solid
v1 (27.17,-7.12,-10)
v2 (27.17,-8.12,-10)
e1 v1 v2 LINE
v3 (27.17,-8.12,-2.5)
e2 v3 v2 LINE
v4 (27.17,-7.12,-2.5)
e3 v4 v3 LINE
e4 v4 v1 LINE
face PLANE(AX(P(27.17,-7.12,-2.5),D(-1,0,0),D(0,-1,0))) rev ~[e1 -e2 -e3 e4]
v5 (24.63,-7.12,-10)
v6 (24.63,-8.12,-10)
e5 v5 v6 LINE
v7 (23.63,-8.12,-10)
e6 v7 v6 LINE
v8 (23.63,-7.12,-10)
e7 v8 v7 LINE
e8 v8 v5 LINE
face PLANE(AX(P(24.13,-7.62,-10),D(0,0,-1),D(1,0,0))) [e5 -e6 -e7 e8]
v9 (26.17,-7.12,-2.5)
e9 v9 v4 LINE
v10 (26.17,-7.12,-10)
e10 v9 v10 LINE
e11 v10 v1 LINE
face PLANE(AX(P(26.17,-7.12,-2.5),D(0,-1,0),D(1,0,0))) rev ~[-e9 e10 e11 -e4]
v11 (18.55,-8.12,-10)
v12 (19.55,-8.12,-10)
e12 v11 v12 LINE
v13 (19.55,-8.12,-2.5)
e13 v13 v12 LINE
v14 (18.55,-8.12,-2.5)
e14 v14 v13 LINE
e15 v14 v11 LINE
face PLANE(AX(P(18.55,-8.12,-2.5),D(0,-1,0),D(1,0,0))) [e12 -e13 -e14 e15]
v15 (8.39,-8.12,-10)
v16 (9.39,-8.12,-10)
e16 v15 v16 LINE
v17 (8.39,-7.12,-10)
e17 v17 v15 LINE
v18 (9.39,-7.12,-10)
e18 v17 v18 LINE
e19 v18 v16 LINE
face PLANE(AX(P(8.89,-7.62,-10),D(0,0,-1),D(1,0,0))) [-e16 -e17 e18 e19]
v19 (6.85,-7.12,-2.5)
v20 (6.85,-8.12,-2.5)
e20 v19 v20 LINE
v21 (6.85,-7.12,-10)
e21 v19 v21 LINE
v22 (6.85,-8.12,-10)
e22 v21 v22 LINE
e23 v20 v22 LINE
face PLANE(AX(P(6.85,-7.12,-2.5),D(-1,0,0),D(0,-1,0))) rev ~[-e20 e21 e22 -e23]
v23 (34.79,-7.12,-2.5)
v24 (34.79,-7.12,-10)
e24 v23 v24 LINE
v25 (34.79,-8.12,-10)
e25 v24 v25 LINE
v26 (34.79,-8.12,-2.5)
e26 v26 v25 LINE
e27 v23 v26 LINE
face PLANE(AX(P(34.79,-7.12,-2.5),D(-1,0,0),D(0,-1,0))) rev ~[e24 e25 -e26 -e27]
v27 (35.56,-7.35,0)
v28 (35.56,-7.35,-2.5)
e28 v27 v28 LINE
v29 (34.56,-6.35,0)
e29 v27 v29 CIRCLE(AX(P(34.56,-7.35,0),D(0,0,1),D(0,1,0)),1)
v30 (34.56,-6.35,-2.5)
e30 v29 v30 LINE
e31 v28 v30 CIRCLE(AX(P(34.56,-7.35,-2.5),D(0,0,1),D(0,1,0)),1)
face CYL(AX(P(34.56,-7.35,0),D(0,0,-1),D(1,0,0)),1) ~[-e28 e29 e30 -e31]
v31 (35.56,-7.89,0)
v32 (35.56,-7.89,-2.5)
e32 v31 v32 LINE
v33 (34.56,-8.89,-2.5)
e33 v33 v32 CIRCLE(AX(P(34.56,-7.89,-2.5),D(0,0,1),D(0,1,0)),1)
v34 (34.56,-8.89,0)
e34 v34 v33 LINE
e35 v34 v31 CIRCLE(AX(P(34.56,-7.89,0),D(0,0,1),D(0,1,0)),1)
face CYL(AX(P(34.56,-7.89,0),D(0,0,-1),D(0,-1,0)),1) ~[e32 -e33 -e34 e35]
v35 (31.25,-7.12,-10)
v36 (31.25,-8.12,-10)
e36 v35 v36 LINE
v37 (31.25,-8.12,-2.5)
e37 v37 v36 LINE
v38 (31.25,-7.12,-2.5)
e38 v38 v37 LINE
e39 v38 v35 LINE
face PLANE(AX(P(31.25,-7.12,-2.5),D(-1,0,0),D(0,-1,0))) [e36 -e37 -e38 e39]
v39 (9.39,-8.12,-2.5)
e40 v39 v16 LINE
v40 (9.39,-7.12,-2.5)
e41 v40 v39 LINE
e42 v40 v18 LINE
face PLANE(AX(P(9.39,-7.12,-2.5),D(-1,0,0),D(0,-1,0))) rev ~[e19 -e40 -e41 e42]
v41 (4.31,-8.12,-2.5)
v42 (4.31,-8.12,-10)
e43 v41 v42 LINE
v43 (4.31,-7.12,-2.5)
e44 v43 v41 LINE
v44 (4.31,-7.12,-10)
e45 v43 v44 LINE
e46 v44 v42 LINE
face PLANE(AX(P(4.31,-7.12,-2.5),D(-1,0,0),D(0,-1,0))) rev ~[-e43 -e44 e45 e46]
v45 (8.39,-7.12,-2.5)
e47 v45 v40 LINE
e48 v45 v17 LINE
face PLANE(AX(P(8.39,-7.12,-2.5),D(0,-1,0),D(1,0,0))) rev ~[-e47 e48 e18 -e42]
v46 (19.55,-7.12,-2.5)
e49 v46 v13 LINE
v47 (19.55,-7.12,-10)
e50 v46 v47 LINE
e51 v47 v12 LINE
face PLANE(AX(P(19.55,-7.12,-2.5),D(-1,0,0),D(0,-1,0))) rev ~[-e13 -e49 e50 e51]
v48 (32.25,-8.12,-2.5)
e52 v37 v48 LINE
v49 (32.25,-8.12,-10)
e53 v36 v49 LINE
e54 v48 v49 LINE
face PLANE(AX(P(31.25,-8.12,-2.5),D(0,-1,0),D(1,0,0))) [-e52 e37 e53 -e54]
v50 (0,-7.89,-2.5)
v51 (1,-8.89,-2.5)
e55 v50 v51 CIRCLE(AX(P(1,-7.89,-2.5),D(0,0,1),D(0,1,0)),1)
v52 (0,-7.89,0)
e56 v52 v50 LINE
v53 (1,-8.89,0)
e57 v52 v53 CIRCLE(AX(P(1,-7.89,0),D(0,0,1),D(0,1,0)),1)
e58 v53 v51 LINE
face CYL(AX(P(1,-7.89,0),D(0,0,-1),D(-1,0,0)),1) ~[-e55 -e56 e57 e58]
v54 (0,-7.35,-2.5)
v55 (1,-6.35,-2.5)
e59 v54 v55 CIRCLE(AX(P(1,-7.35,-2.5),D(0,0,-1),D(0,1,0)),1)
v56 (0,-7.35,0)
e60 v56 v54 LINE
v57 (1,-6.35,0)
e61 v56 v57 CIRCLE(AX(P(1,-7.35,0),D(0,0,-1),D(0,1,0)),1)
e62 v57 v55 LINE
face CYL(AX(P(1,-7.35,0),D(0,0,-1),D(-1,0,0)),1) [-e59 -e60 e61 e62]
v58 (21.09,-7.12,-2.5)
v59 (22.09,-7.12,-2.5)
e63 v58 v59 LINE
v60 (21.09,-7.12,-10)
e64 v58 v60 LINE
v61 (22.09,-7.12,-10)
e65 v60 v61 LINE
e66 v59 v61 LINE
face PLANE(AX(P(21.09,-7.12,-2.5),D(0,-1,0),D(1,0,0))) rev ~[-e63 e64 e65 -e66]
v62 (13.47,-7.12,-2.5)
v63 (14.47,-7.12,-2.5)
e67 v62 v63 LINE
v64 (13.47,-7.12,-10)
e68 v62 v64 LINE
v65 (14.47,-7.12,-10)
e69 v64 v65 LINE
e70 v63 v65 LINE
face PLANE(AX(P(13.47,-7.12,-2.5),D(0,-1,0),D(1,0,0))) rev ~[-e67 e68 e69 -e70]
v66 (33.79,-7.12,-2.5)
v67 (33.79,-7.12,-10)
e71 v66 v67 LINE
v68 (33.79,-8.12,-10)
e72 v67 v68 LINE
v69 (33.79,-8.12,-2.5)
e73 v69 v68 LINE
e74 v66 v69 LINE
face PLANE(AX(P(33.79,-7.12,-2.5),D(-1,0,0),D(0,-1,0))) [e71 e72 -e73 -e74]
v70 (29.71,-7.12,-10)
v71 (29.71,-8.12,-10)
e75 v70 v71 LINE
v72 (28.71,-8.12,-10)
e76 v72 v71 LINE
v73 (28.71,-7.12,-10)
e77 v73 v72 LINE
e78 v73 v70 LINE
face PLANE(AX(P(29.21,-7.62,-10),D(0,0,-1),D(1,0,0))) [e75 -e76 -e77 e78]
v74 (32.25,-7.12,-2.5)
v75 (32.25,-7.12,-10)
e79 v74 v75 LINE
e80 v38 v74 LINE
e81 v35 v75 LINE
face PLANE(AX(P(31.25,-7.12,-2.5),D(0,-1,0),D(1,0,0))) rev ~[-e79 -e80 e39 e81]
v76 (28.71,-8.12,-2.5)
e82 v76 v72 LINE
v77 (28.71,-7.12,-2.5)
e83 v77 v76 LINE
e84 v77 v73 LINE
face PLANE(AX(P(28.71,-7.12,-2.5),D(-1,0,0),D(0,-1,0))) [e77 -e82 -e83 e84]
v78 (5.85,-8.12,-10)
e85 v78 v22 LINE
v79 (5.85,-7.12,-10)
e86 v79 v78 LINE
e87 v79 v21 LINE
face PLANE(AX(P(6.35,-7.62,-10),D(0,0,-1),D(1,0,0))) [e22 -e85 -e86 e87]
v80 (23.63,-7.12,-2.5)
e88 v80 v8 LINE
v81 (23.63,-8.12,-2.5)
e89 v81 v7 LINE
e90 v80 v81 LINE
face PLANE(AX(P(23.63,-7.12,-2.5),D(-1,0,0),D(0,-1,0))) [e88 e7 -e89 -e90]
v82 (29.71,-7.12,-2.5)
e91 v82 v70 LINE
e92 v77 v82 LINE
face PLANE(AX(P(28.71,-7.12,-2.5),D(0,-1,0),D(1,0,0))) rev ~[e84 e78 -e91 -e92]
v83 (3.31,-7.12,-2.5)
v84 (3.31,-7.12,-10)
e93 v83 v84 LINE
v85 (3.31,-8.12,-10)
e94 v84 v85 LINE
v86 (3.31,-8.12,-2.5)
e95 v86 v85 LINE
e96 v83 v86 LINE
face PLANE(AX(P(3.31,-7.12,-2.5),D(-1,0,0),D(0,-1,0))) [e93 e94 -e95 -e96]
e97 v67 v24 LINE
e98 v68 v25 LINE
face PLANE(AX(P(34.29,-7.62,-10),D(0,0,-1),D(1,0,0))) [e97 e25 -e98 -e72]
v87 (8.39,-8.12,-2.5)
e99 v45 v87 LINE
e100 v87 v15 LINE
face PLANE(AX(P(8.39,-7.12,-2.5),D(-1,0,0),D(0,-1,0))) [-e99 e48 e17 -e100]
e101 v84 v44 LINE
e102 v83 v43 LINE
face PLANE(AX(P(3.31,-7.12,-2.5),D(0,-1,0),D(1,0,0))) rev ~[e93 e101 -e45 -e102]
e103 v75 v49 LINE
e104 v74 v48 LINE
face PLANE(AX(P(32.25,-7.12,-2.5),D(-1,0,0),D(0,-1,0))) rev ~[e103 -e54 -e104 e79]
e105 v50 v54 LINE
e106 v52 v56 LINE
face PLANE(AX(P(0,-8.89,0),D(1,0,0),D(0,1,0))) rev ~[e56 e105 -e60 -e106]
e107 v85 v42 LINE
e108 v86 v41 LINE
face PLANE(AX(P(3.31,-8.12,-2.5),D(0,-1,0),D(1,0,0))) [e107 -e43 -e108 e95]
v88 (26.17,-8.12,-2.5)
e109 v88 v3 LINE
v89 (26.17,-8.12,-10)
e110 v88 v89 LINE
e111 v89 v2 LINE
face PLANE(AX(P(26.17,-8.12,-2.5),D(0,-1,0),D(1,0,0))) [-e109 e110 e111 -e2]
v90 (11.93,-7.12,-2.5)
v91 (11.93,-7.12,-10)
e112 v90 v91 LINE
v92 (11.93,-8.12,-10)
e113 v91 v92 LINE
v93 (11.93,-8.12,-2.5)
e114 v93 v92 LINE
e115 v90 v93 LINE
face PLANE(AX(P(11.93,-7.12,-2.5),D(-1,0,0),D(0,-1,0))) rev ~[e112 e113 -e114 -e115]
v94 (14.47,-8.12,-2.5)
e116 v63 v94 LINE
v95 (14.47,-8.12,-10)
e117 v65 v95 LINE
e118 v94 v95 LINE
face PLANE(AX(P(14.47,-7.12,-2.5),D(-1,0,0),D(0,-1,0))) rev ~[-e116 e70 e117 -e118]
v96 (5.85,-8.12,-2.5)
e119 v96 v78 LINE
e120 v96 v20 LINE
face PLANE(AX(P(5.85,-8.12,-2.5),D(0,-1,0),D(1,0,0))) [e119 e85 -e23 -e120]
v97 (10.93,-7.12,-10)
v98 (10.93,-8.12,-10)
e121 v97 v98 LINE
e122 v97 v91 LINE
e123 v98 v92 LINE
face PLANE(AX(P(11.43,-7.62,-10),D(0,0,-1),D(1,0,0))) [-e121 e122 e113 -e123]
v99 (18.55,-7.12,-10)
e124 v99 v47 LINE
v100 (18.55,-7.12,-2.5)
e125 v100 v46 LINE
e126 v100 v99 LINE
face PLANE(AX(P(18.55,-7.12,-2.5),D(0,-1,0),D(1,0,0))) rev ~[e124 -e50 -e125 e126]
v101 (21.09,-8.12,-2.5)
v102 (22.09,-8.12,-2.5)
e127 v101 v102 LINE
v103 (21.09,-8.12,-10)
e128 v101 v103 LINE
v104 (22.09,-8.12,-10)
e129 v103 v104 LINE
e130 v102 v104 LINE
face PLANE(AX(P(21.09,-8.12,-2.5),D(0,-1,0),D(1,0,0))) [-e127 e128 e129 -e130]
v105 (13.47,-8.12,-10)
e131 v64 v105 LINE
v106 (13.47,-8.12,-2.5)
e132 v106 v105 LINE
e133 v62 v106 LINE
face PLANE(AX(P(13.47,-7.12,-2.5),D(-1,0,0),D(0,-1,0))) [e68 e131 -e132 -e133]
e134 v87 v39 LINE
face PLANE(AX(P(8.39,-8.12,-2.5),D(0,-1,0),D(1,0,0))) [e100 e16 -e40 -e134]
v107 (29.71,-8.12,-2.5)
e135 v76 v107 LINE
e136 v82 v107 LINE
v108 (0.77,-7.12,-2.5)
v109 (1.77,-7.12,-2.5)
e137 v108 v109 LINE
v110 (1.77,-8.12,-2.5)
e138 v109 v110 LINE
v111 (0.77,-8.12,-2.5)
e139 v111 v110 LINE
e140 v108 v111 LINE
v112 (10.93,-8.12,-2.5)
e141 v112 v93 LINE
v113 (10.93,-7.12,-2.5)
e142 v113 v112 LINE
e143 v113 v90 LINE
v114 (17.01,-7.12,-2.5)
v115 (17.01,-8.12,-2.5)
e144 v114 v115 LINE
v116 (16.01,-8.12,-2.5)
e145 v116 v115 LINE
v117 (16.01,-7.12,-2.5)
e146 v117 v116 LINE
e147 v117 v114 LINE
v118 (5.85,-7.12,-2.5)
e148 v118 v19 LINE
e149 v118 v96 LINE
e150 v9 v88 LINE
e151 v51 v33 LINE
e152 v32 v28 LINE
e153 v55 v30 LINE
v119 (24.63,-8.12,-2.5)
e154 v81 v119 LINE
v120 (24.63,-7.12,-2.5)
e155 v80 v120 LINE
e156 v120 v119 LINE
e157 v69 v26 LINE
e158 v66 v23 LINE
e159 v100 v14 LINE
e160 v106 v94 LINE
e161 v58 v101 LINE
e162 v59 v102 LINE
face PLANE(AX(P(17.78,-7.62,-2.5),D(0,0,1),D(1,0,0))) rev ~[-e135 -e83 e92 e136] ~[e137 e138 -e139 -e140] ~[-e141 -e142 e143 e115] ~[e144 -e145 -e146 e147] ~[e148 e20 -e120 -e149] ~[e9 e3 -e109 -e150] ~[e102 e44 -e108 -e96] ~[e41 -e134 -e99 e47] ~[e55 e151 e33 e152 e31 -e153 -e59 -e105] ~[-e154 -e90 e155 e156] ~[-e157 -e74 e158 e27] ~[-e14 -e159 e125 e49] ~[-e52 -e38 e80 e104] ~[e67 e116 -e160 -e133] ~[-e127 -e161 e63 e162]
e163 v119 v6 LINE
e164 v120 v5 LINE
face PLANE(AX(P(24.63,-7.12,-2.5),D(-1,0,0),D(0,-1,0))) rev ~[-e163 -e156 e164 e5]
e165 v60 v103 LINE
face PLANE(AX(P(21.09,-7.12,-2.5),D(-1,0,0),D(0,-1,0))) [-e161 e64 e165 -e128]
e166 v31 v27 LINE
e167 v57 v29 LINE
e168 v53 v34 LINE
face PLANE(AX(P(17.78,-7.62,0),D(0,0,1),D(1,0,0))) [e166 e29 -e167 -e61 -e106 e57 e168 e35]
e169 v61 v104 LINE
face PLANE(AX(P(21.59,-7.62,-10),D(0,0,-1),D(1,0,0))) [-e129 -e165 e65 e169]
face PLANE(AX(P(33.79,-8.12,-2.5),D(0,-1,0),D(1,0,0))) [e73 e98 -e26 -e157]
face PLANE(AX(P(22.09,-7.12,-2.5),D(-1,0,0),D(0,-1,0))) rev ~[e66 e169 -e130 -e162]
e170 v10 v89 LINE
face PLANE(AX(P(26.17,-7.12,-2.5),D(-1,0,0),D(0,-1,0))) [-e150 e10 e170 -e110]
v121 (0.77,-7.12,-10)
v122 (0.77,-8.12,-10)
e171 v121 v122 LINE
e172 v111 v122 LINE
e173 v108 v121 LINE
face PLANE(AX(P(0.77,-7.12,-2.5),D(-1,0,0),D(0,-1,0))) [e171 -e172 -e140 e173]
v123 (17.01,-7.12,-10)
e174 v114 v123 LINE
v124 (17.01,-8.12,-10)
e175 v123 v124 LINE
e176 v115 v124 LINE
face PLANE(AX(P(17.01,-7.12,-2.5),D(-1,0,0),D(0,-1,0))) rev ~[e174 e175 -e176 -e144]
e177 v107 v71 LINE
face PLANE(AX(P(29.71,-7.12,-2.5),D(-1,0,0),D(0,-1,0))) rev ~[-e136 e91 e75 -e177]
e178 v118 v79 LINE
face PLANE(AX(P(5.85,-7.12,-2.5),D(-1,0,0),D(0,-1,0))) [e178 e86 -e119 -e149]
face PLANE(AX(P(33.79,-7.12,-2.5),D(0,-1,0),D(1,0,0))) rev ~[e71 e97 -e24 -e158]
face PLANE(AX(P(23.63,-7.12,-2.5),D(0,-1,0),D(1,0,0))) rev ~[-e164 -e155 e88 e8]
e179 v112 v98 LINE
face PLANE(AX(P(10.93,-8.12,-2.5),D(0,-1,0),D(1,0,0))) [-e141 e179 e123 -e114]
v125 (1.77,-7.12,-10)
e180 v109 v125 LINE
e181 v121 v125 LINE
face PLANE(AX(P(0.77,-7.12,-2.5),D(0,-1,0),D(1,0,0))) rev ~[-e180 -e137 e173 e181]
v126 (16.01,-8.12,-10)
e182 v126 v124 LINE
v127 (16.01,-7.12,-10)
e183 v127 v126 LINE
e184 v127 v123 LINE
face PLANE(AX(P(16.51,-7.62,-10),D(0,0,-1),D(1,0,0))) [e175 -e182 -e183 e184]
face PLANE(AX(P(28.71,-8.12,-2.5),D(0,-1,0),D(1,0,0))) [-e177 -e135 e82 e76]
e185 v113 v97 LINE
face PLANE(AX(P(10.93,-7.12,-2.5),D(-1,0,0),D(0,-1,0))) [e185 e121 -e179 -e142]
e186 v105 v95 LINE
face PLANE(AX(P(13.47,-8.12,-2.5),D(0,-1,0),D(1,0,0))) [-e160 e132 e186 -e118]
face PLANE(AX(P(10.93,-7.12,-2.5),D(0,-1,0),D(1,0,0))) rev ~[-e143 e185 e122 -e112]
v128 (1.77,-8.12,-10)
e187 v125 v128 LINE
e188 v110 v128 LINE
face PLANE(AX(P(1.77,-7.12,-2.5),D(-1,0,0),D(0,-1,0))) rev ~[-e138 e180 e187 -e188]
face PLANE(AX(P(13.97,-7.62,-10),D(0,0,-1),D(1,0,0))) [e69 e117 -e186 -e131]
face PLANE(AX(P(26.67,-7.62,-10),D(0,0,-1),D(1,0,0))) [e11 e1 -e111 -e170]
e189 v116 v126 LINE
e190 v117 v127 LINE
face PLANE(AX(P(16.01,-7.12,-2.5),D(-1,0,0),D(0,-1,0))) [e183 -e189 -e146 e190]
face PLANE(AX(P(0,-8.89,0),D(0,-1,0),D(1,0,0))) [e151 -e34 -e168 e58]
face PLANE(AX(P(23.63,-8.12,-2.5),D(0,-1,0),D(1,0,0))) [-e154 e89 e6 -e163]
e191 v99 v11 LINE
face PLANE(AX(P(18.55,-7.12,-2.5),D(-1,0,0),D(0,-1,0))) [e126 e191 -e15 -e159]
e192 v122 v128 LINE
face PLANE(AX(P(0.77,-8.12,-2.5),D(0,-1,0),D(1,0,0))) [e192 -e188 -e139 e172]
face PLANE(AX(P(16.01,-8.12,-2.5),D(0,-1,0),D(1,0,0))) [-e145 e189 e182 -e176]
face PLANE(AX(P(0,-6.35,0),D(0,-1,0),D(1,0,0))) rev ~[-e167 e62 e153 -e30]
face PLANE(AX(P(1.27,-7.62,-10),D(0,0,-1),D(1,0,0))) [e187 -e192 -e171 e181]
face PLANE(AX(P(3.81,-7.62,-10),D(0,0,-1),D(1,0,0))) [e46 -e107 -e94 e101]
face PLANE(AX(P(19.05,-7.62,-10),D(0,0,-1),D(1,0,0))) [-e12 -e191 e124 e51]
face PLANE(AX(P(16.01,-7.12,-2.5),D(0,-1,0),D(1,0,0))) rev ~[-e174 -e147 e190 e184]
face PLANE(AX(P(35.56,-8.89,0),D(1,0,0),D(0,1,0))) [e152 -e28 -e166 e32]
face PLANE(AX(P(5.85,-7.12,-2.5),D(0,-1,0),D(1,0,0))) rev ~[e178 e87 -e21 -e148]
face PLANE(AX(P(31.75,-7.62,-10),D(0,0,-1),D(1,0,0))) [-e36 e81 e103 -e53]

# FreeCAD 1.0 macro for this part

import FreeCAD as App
import Part
import Sketcher
from FreeCAD import Vector
Q = App.Units.Quantity


def edges_at(feature, points):
    """Names of the edges that pass closest to the given points."""
    edges = feature.Shape.Edges
    near = lambda p: min(range(len(edges)), key=lambda i: edges[i].distToShape(Part.Vertex(*p))[0])
    return sorted({f"Edge{near(p) + 1}" for p in points})


def add_polygon(sketch, points):
    """Adds a closed chain of lines whose ends are joined by coincident constraints."""
    first, n = sketch.GeometryCount, len(points)
    for a, b in zip(points, points[1:] + points[:1]):
        sketch.addGeometry(Part.LineSegment(App.Vector(*a, 0), App.Vector(*b, 0)), False)
    for i in range(n):
        sketch.addConstraint(Sketcher.Constraint("Coincident", first + i, 2, first + (i + 1) % n, 1))

doc = App.newDocument("Part")
body = doc.addObject("PartDesign::Body", "Body")

# Sketch on XY plane
sketch1 = doc.addObject("Sketcher::SketchObject", "Sketch")
body.addObject(sketch1)
sketch1.AttachmentSupport = (doc.XY_Plane, [""])
sketch1.MapMode = "FlatFace"
add_polygon(sketch1, [(0, 1.27), (0, -1.27), (35.56, -1.27), (35.56, 1.27)])  # lines 0-3
sketch1.addConstraint([
    Sketcher.Constraint("Vertical", 0),
    Sketcher.Constraint("Horizontal", 1),
    Sketcher.Constraint("Vertical", 2),
    Sketcher.Constraint("Horizontal", 3),
    Sketcher.Constraint("Symmetric", 0, 2, 3, 2, -1, 1),
    Sketcher.Constraint("DistanceX", 1, 1, 1, 2, Q("35.56 mm")),
    Sketcher.Constraint("DistanceY", 0, 2, 0, 1, Q("2.54 mm")),
])
pad1 = doc.addObject("PartDesign::Pad", "Pad")
body.addObject(pad1)
pad1.Profile = sketch1
pad1.Length = 2.5
pad1.Reversed = True
doc.recompute()

fillet = doc.addObject("PartDesign::Fillet", "Fillet")
body.addObject(fillet)
fillet.Base = (pad1, edges_at(pad1, [
    (35.56, 1.27, -1.25),
    (35.56, -1.27, -1.25),
    (0, 1.27, -1.25),
    (0, -1.27, -1.25),
]))
fillet.Radius = 1

# Sketch on XY plane
sketch2 = doc.addObject("Sketcher::SketchObject", "Sketch001")
body.addObject(sketch2)
sketch2.AttachmentSupport = (doc.XY_Plane, [""])
sketch2.MapMode = "FlatFace"
sketch2.AttachmentOffset = App.Placement(Vector(0, 0, -2.5), App.Rotation())
add_polygon(sketch2, [(0.77, -0.5), (0.77, 0.5), (1.77, 0.5), (1.77, -0.5)])  # lines 0-3
sketch2.addConstraint([
    Sketcher.Constraint("Vertical", 0),
    Sketcher.Constraint("Horizontal", 1),
    Sketcher.Constraint("Vertical", 2),
    Sketcher.Constraint("Horizontal", 3),
    Sketcher.Constraint("Equal", 3, 0),
    Sketcher.Constraint("DistanceX", 1, 1, 1, 2, Q("1 mm")),
    Sketcher.Constraint("DistanceY", -1, 1, 0, 2, Q("0.5 mm")),
    Sketcher.Constraint("DistanceX", -1, 1, 0, 2, Q("0.77 mm")),
])
pad2 = doc.addObject("PartDesign::Pad", "Pad001")
body.addObject(pad2)
pad2.Profile = sketch2
pad2.Length = 7.5
pad2.Reversed = True
doc.recompute()

linearpattern = doc.addObject("PartDesign::LinearPattern", "LinearPattern")
body.addObject(linearpattern)
linearpattern.Originals = [pad2]
linearpattern.Direction = (doc.X_Axis, [""])
linearpattern.Mode = "offset"
linearpattern.Offset = 2.54
linearpattern.Occurrences = 14
body.Tip = linearpattern
body2 = doc.addObject("PartDesign::Body", "Body001")
doc.recompute()

body.Placement = App.Placement(Vector(0, 7.62, 0), App.Rotation(Vector(0, 0, 1), 0))
boolean = doc.addObject("PartDesign::Boolean", "Boolean")
body2.addObject(boolean)
boolean.Type = "Fuse"
boolean.addObjects([body])
body3 = doc.addObject("PartDesign::Body", "Body002")
doc.recompute()

body2.Placement = App.Placement(Vector(0, -15.24, 0), App.Rotation(Vector(0, 0, 1), 0))
boolean2 = doc.addObject("PartDesign::Boolean", "Boolean001")
body3.addObject(boolean2)
boolean2.Type = "Fuse"
boolean2.addObjects([body2])

doc.recompute()
